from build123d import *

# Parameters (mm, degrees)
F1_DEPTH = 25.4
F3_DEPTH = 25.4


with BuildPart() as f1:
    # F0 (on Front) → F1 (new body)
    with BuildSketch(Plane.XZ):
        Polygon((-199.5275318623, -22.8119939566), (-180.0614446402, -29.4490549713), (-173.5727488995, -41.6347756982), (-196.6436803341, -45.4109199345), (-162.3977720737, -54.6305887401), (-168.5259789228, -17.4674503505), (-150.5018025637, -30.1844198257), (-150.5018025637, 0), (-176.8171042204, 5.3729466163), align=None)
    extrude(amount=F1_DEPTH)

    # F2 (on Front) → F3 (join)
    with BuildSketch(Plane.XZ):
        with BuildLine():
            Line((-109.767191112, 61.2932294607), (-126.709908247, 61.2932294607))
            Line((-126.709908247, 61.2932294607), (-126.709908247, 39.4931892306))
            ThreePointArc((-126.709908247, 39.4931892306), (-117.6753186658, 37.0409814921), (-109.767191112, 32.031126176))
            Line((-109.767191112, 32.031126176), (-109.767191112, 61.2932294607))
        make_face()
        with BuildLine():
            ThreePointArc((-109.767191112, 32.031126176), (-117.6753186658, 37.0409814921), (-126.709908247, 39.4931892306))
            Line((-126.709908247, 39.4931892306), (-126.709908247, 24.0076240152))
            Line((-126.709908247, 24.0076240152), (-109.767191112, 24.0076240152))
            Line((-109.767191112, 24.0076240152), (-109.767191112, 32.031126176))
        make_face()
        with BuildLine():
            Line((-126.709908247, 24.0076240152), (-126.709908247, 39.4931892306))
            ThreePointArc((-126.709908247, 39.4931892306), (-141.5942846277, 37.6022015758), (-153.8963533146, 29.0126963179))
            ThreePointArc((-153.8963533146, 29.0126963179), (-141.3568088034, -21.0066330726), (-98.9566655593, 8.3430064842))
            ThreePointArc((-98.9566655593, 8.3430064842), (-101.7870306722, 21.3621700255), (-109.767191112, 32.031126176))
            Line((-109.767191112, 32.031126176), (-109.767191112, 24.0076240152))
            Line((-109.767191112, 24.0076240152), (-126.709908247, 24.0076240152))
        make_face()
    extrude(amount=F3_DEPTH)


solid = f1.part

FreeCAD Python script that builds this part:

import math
import FreeCAD as App
import Part
import Sketcher

V = App.Vector
Q = App.Units.Quantity


def add_polygon(sketch, points):
    """Adds a closed chain of lines whose ends are joined by coincident constraints."""
    first, n = sketch.GeometryCount, len(points)
    for a, b in zip(points, points[1:] + points[:1]):
        sketch.addGeometry(Part.LineSegment(App.Vector(*a, 0), App.Vector(*b, 0)), False)
    for i in range(n):
        sketch.addConstraint(Sketcher.Constraint("Coincident", first + i, 2, first + (i + 1) % n, 1))

doc = App.newDocument("Part")
params = doc.addObject("Spreadsheet::Sheet", "Params")
for row, (alias, value) in enumerate([
    ("pad1_length", "1 in"),
    ("pad2_length", "1 in"),
], start=1):
    params.set(f"A{row}", alias)
    params.set(f"B{row}", "=" + value)
    params.setAlias(f"B{row}", alias)

body = doc.addObject("PartDesign::Body", "Body")

sketch1 = doc.addObject("Sketcher::SketchObject", "Sketch")
body.addObject(sketch1)
sketch1.AttachmentSupport = (doc.XZ_Plane, [""])
sketch1.MapMode = "FlatFace"
add_polygon(sketch1, [(-200, -23), (-180, -29), (-174, -42), (-197, -45), (-162, -55), (-169, -17), (-151, -30), (-151, 0), (-177, 5)])
sketch1.addConstraint([
    Sketcher.Constraint("Vertical", 6),
    Sketcher.Constraint("PointOnObject", 6, 2, -1),
    Sketcher.Constraint("DistanceY", 6, 1, 6, 2, Q("30.18442 mm")),
    Sketcher.Constraint("DistanceX", 2, 2, 4, 2, Q("28.117701 mm")),
    Sketcher.Constraint("DistanceY", 2, 2, 5, 2, Q("15.2265 mm")),
    Sketcher.Constraint("DistanceX", 7, 2, 6, 2, Q("26.315302 mm")),
    Sketcher.Constraint("DistanceY", 0, 2, 7, 2, Q("34.822002 mm")),
    Sketcher.Constraint("Distance", 2, Q("23.37792 mm")),
    Sketcher.Constraint("Distance", 3, Q("35.465258 mm")),
    Sketcher.Constraint("Distance", 4, Q("37.665021 mm")),
    Sketcher.Constraint("DistanceX", 1, 2, -1, 1, Q("173.572749 mm")),
    Sketcher.Constraint("DistanceX", 2, 2, -1, 1, Q("196.64368 mm")),
    Sketcher.Constraint("DistanceY", 3, 2, -1, 1, Q("54.630589 mm")),
    Sketcher.Constraint("DistanceX", 8, 2, -1, 1, Q("199.527532 mm")),
    Sketcher.Constraint("DistanceY", 1, 2, 0, 2, Q("12.185721 mm")),
    Sketcher.Constraint("DistanceX", 3, 2, 5, 2, Q("11.89597 mm")),
    Sketcher.Constraint("DistanceX", 0, 2, 7, 2, Q("3.24434 mm")),
    Sketcher.Constraint("DistanceY", 0, 2, 8, 2, Q("6.637061 mm")),
])
pad1 = doc.addObject("PartDesign::Pad", "Pad")
body.addObject(pad1)
pad1.Profile = sketch1
pad1.setExpression("Length", "Params.pad1_length")

sketch2 = doc.addObject("Sketcher::SketchObject", "Sketch001")
body.addObject(sketch2)
sketch2.AttachmentSupport = (doc.XZ_Plane, [""])
sketch2.MapMode = "FlatFace"
sketch2.addGeometry([
    Part.LineSegment(V(-110, 61, 0), V(-127, 61, 0)),
    Part.LineSegment(V(-127, 61, 0), V(-127, 39, 0)),
    Part.ArcOfCircle(Part.Circle(V(-130, 8, 0), V(0, 0, 1), 31), math.radians(83), math.radians(360)),
    Part.ArcOfCircle(Part.Circle(V(-130, 8, 0), V(0, 0, 1), 31), math.radians(0), math.radians(49)),
    Part.LineSegment(V(-110, 32, 0), V(-110, 61, 0)),
], False)
sketch2.addConstraint([
    Sketcher.Constraint("Coincident", 0, 2, 1, 1),
    Sketcher.Constraint("Coincident", 1, 2, 2, 1),
    Sketcher.Constraint("Tangent", 2, 2, 3, 1),
    Sketcher.Constraint("Coincident", 3, 2, 4, 1),
    Sketcher.Constraint("Coincident", 4, 2, 0, 1),
    Sketcher.Constraint("Horizontal", 0),
    Sketcher.Constraint("Vertical", 1),
    Sketcher.Constraint("Vertical", 4),
    Sketcher.Constraint("Equal", 2, 3),
    Sketcher.Constraint("Horizontal", 3, 3, 2, 2),
    Sketcher.Constraint("Radius", 2, Q("31.358072 mm")),
    Sketcher.Constraint("DistanceY", 1, 2, 1, 1, Q("21.80004 mm")),
    Sketcher.Constraint("DistanceX", 0, 2, 0, 1, Q("16.942717 mm")),
    Sketcher.Constraint("DistanceY", 4, 1, 4, 2, Q("29.262103 mm")),
    Sketcher.Constraint("DistanceX", 0, 2, -1, 1, Q("126.709908 mm")),
    Sketcher.Constraint("DistanceY", -1, 1, 0, 2, Q("61.293229 mm")),
])
pad2 = doc.addObject("PartDesign::Pad", "Pad001")
body.addObject(pad2)
pad2.Profile = sketch2
pad2.setExpression("Length", "Params.pad2_length")

doc.recompute()
